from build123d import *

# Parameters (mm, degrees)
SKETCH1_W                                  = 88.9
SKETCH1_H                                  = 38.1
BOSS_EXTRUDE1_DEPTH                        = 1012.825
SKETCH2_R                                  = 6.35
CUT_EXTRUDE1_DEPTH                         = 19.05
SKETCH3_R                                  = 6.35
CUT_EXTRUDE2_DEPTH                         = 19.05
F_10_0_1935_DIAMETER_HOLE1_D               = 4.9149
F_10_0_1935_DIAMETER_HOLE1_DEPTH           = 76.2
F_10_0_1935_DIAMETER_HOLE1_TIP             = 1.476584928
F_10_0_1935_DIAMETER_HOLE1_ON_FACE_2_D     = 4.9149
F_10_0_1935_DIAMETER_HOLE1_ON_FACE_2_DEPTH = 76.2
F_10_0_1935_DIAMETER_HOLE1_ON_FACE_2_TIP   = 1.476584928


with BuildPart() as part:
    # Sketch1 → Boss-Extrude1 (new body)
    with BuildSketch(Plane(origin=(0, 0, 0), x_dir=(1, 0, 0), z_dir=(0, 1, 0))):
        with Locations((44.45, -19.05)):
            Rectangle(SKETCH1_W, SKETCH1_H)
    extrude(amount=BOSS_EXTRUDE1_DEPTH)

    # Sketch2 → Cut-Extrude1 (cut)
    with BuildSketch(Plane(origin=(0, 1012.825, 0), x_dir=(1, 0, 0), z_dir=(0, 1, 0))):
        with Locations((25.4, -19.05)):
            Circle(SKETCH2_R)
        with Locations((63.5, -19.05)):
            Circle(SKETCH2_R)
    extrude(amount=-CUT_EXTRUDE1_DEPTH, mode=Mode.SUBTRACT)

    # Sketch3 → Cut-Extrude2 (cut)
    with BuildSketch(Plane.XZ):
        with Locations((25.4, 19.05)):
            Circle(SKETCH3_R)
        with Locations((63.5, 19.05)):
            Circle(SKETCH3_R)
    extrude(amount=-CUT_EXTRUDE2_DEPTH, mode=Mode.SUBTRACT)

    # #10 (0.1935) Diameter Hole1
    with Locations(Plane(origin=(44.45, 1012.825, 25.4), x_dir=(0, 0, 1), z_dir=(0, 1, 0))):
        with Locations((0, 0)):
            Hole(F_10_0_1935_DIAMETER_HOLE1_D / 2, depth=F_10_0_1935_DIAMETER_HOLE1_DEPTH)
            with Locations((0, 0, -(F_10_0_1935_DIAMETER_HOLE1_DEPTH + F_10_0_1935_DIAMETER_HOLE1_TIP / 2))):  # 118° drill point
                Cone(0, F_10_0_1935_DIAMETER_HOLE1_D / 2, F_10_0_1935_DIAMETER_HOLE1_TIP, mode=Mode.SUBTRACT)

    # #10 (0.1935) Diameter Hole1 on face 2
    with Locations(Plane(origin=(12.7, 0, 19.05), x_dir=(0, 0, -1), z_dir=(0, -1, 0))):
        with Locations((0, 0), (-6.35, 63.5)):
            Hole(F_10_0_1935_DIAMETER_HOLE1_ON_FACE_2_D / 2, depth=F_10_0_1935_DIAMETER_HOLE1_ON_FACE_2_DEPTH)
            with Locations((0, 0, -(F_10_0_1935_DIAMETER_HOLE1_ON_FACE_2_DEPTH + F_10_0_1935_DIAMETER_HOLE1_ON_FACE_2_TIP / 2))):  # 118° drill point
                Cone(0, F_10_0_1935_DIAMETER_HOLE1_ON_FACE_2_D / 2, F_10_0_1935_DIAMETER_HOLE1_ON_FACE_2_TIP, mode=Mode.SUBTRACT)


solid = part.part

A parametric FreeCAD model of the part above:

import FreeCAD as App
import Part
import Sketcher
Q = App.Units.Quantity

doc = App.newDocument("Part")
body = doc.addObject("PartDesign::Body", "Body")

# Sketch on XZ plane
sketch1 = body.newObject("Sketcher::SketchObject", "Sketch")
sketch1.AttachmentSupport = (doc.getObject("XZ_Plane"), [""])
sketch1.MapMode = "FlatFace"
sketch1.addGeometry([
    Part.LineSegment(App.Vector(0, 0, 0), App.Vector(0, 38.1, 0)),
    Part.LineSegment(App.Vector(0, 38.1, 0), App.Vector(88.9, 38.1, 0)),
    Part.LineSegment(App.Vector(88.9, 38.1, 0), App.Vector(88.9, 0, 0)),
    Part.LineSegment(App.Vector(88.9, 0, 0), App.Vector(0, 0, 0)),
], False)
sketch1.addConstraint([
    Sketcher.Constraint("Coincident", 0, 2, 1, 1),
    Sketcher.Constraint("Coincident", 1, 2, 2, 1),
    Sketcher.Constraint("Coincident", 2, 2, 3, 1),
    Sketcher.Constraint("Coincident", 3, 2, 0, 1),
    Sketcher.Constraint("Vertical", 0),
    Sketcher.Constraint("Horizontal", 1),
    Sketcher.Constraint("Vertical", 2),
    Sketcher.Constraint("Horizontal", 3),
    Sketcher.Constraint("Coincident", 3, 2, -1, 1),
    Sketcher.Constraint("DistanceX", 1, 1, 1, 2, Q("3.5 in")),
    Sketcher.Constraint("DistanceY", 0, 1, 0, 2, Q("1.5 in")),
])
pad1 = body.newObject("PartDesign::Pad", "Pad")
pad1.Profile = sketch1
pad1.Length = Q("39.875 in")
pad1.Reversed = True

# Sketch on XZ plane
sketch2 = body.newObject("Sketcher::SketchObject", "Sketch001")
sketch2.AttachmentSupport = (doc.getObject("XZ_Plane"), [""])
sketch2.MapMode = "FlatFace"
sketch2.AttachmentOffset = App.Placement(App.Vector(0, 0, -39.875 * 25.4), App.Rotation())
sketch2.addGeometry([
    Part.Circle(App.Vector(25.4, 19.05, 0), App.Vector(0, 0, 1), 6.35),
    Part.Circle(App.Vector(63.5, 19.05, 0), App.Vector(0, 0, 1), 6.35),
], False)
sketch2.addConstraint([
    Sketcher.Constraint("Equal", 0, 1),
    Sketcher.Constraint("Horizontal", 0, 3, 1, 3),
    Sketcher.Constraint("Diameter", 0, Q("0.5 in")),
    Sketcher.Constraint("DistanceX", -1, 1, 0, 3, Q("1 in")),
    Sketcher.Constraint("DistanceX", -1, 1, 1, 3, Q("2.5 in")),
    Sketcher.Constraint("DistanceY", -1, 1, 0, 3, Q("0.75 in")),
])
pocket1 = body.newObject("PartDesign::Pocket", "Pocket")
pocket1.Profile = sketch2
pocket1.Length = Q("0.75 in")
pocket1.Reversed = True

# Sketch on XZ plane
sketch3 = body.newObject("Sketcher::SketchObject", "Sketch002")
sketch3.AttachmentSupport = (doc.getObject("XZ_Plane"), [""])
sketch3.MapMode = "FlatFace"
sketch3.addGeometry([
    Part.Circle(App.Vector(25.4, 19.05, 0), App.Vector(0, 0, 1), 6.35),
    Part.Circle(App.Vector(63.5, 19.05, 0), App.Vector(0, 0, 1), 6.35),
], False)
sketch3.addConstraint([
    Sketcher.Constraint("Equal", 0, 1),
    Sketcher.Constraint("Horizontal", 0, 3, 1, 3),
    Sketcher.Constraint("Diameter", 0, Q("0.5 in")),
    Sketcher.Constraint("DistanceX", -1, 1, 0, 3, Q("1 in")),
    Sketcher.Constraint("DistanceX", -1, 1, 1, 3, Q("2.5 in")),
    Sketcher.Constraint("DistanceY", -1, 1, 0, 3, Q("0.75 in")),
])
pocket2 = body.newObject("PartDesign::Pocket", "Pocket001")
pocket2.Profile = sketch3
pocket2.Length = Q("0.75 in")

# Sketch on XZ plane
sketch4 = body.newObject("Sketcher::SketchObject", "Sketch003")
sketch4.AttachmentSupport = (doc.getObject("XZ_Plane"), [""])
sketch4.MapMode = "FlatFace"
sketch4.AttachmentOffset = App.Placement(App.Vector(0, 0, -39.875 * 25.4), App.Rotation())
sketch4.addGeometry(Part.Circle(App.Vector(44.45, 25.4, 0), App.Vector(0, 0, 1), 2.45745), False)
sketch4.addConstraint([
    Sketcher.Constraint("DistanceY", -1, 1, 0, 3, Q("1 in")),
    Sketcher.Constraint("Diameter", 0, Q("0.1935 in")),
    Sketcher.Constraint("DistanceX", -1, 1, 0, 3, Q("1.75 in")),
])
doc.recompute()
hole = body.newObject("PartDesign::Hole", "Hole")
hole.Profile = sketch4
hole.ThreadType = "None"
hole.Diameter = Q("0.1935 in")
hole.DepthType = "Dimension"
hole.Depth = Q("3 in")
hole.DrillPoint = "Angled"
hole.DrillPointAngle = 118
hole.Reversed = True

# Sketch on XZ plane
sketch5 = body.newObject("Sketcher::SketchObject", "Sketch004")
sketch5.AttachmentSupport = (doc.getObject("XZ_Plane"), [""])
sketch5.MapMode = "FlatFace"
sketch5.addGeometry([
    Part.Circle(App.Vector(12.7, 19.05, 0), App.Vector(0, 0, 1), 2.45745),
    Part.Circle(App.Vector(76.2, 25.4, 0), App.Vector(0, 0, 1), 2.45745),
], False)
sketch5.addConstraint([
    Sketcher.Constraint("Equal", 0, 1),
    Sketcher.Constraint("DistanceX", -1, 1, 1, 3, Q("3 in")),
    Sketcher.Constraint("DistanceY", -1, 1, 1, 3, Q("1 in")),
    Sketcher.Constraint("Diameter", 0, Q("0.1935 in")),
    Sketcher.Constraint("DistanceX", -1, 1, 0, 3, Q("0.5 in")),
    Sketcher.Constraint("DistanceY", -1, 1, 0, 3, Q("0.75 in")),
])
doc.recompute()
hole2 = body.newObject("PartDesign::Hole", "Hole001")
hole2.Profile = sketch5
hole2.ThreadType = "None"
hole2.Diameter = Q("0.1935 in")
hole2.DepthType = "Dimension"
hole2.Depth = Q("3 in")
hole2.DrillPoint = "Angled"
hole2.DrillPointAngle = 118

doc.recompute()
